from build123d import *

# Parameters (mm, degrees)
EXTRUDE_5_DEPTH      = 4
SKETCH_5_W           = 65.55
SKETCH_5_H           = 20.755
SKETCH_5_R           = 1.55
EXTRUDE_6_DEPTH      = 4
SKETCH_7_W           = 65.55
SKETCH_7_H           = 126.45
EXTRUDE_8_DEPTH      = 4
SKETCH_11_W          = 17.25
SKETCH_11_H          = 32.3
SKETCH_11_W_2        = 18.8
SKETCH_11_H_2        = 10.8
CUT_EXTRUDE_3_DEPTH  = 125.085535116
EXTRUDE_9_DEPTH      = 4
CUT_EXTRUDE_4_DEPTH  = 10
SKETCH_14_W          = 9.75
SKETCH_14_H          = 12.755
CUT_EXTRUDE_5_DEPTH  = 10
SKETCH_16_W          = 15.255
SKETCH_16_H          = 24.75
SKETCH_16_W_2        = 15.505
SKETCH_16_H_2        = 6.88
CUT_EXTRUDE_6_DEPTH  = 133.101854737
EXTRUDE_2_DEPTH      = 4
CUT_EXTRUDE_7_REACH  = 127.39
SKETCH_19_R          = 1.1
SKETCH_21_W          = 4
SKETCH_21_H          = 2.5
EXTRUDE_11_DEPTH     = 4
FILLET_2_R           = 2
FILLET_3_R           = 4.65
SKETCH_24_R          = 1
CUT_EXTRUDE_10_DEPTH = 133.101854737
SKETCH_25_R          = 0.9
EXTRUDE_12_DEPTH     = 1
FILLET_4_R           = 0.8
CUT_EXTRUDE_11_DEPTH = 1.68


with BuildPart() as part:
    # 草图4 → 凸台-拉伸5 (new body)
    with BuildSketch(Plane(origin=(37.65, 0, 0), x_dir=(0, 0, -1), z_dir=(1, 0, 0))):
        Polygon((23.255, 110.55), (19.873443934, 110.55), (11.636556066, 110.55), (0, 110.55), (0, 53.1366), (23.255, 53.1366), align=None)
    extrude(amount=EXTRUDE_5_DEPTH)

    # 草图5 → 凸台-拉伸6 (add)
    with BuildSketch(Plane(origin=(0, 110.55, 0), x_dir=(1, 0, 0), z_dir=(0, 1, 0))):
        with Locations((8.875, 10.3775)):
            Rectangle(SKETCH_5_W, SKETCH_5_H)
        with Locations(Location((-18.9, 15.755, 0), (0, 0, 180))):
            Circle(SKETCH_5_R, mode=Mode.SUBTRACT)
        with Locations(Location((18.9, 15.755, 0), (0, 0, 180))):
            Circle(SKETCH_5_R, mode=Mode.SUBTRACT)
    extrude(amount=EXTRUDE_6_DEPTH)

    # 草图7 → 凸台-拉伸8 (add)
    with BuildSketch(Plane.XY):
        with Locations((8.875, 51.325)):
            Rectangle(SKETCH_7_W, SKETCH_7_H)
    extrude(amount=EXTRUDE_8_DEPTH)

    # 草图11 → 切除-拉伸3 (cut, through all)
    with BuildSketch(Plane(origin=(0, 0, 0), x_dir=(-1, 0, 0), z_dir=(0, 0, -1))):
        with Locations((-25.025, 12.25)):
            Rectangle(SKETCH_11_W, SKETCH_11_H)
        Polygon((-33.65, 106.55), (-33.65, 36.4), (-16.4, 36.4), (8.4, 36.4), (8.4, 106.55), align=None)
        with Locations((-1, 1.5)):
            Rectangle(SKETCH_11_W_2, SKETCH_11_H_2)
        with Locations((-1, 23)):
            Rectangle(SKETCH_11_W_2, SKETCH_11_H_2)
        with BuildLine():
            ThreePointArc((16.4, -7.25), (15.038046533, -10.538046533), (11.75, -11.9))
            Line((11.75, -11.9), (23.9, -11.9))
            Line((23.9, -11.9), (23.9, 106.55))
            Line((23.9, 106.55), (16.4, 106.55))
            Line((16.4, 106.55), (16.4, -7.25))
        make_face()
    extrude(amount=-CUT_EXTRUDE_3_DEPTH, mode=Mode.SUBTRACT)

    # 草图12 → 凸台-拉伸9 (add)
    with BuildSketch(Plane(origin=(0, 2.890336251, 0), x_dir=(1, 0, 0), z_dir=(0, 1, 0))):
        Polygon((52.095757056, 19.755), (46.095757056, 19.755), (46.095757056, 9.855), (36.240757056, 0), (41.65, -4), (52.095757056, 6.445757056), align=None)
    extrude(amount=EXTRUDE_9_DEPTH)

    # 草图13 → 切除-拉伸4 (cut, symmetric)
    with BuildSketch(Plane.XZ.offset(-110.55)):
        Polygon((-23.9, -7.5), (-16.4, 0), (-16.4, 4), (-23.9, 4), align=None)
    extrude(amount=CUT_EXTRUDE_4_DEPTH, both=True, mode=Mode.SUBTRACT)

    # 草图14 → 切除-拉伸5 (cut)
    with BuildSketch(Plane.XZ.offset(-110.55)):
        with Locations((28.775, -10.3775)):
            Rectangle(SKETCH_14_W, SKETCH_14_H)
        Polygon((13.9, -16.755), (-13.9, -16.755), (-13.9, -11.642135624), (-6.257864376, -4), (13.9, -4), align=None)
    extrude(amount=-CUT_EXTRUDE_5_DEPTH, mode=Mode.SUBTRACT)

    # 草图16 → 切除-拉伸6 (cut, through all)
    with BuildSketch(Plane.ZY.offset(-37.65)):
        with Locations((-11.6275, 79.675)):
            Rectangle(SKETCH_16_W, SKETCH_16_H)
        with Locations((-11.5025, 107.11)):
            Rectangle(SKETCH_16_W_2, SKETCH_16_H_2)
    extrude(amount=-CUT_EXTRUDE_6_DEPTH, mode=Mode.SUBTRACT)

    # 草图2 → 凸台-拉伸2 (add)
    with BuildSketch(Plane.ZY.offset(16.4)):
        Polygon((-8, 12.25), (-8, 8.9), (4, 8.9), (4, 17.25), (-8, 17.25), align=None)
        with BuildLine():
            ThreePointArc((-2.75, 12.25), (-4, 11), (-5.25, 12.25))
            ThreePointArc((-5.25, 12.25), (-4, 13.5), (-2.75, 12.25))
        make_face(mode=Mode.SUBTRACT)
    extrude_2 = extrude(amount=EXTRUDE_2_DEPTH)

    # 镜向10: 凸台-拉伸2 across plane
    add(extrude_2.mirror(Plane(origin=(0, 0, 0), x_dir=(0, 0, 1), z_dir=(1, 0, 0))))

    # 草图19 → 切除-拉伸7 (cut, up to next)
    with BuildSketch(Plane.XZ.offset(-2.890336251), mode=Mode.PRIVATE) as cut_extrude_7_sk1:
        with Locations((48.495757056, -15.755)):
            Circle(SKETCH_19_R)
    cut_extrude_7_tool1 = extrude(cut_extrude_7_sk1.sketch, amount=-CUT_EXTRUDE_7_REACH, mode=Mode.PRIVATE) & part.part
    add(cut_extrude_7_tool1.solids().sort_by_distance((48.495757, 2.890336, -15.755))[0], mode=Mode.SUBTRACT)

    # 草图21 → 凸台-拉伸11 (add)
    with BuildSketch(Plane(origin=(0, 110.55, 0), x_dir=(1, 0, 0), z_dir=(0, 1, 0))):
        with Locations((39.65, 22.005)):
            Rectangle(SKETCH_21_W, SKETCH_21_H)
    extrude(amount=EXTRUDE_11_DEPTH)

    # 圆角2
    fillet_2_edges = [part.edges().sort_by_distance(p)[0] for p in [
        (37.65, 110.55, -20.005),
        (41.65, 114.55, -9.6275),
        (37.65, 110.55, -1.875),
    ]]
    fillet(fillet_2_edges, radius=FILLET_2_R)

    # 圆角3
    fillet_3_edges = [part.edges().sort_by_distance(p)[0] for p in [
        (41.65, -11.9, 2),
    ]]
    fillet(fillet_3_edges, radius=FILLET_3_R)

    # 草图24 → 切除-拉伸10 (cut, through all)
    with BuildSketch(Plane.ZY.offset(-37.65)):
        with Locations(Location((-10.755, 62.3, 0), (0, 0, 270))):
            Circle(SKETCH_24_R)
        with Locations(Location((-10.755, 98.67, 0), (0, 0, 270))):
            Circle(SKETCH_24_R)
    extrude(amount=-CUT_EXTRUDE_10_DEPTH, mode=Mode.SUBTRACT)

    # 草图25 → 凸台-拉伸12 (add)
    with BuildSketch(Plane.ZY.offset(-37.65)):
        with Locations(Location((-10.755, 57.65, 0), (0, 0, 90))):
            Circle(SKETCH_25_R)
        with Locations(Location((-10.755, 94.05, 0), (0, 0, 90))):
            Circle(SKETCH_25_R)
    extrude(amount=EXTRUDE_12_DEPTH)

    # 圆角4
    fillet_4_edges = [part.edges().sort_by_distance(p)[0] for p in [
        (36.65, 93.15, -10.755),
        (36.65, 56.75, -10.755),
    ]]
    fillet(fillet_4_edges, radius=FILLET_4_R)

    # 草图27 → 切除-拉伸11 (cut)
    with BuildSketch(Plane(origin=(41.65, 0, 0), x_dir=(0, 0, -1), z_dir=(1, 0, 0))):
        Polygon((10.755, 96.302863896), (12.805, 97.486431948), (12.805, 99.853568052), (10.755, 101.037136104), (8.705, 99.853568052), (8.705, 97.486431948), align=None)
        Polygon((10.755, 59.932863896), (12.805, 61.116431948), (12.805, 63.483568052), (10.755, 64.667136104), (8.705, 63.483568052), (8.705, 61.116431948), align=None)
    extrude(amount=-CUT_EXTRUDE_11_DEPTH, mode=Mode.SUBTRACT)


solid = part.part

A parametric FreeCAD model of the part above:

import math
import FreeCAD as App
import Part
import Sketcher

V = App.Vector
Q = App.Units.Quantity


def edges_at(feature, points):
    """Names of the edges that pass closest to the given points."""
    edges = feature.Shape.Edges
    near = lambda p: min(range(len(edges)), key=lambda i: edges[i].distToShape(Part.Vertex(*p))[0])
    return sorted({f"Edge{near(p) + 1}" for p in points})


def add_polygon(sketch, points):
    """Adds a closed chain of lines whose ends are joined by coincident constraints."""
    first, n = sketch.GeometryCount, len(points)
    for a, b in zip(points, points[1:] + points[:1]):
        sketch.addGeometry(Part.LineSegment(App.Vector(*a, 0), App.Vector(*b, 0)), False)
    for i in range(n):
        sketch.addConstraint(Sketcher.Constraint("Coincident", first + i, 2, first + (i + 1) % n, 1))

doc = App.newDocument("Part")
body = doc.addObject("PartDesign::Body", "Body")

# Sketch on YZ plane
sketch1 = body.newObject("Sketcher::SketchObject", "Sketch")
sketch1.AttachmentSupport = (doc.getObject("YZ_Plane"), [""])
sketch1.MapMode = "FlatFace"
sketch1.AttachmentOffset = App.Placement(V(0, 0, 37.65), App.Rotation())
add_polygon(sketch1, [(110.55, -23.255), (110.55, 0), (53.1366, 0), (53.1366, -23.255)])  # lines 0-3
sketch1.addConstraint([
    Sketcher.Constraint("Vertical", 0),
    Sketcher.Constraint("Horizontal", 1),
    Sketcher.Constraint("Vertical", 2),
    Sketcher.Constraint("Horizontal", 3),
    Sketcher.Constraint("PointOnObject", 0, 2, -1),
    Sketcher.Constraint("DistanceY", 0, 1, 0, 2, Q("23.255 mm")),
    Sketcher.Constraint("DistanceX", -1, 1, 0, 2, Q("110.55 mm")),
    Sketcher.Constraint("DistanceX", 1, 2, 1, 1, Q("57.4134 mm")),
])
pad1 = body.newObject("PartDesign::Pad", "Pad")
pad1.Profile = sketch1
pad1.Length = 4

# Sketch on XZ plane
sketch2 = body.newObject("Sketcher::SketchObject", "Sketch001")
sketch2.AttachmentSupport = (doc.getObject("XZ_Plane"), [""])
sketch2.MapMode = "FlatFace"
sketch2.AttachmentOffset = App.Placement(V(0, 0, -110.55), App.Rotation())
add_polygon(sketch2, [(-23.9, -20.755), (-23.9, 0), (41.65, 0), (41.65, -20.755)])  # lines 0-3
sketch2.addGeometry(Part.Circle(V(-18.9, -15.755, 0), V(0, 0, 1), 1.55), False)  # 4
sketch2.addGeometry(Part.Circle(V(18.9, -15.755, 0), V(0, 0, 1), 1.55), False)  # 5
sketch2.addConstraint([
    Sketcher.Constraint("Vertical", 0),
    Sketcher.Constraint("Horizontal", 1),
    Sketcher.Constraint("Vertical", 2),
    Sketcher.Constraint("Horizontal", 3),
    Sketcher.Constraint("Equal", 4, 5),
    Sketcher.Constraint("Symmetric", 4, 3, 5, 3, -2),
    Sketcher.Constraint("PointOnObject", 0, 2, -1),
    Sketcher.Constraint("Diameter", 4, Q("3.1 mm")),
    Sketcher.Constraint("DistanceX", 0, 2, 4, 3, Q("5 mm")),
    Sketcher.Constraint("DistanceY", 2, 2, 5, 3, Q("5 mm")),
    Sketcher.Constraint("DistanceX", 1, 1, 1, 2, Q("65.55 mm")),
    Sketcher.Constraint("DistanceX", 4, 3, -1, 1, Q("18.9 mm")),
    Sketcher.Constraint("DistanceY", 0, 1, 0, 2, Q("20.755 mm")),
])
pad2 = body.newObject("PartDesign::Pad", "Pad001")
pad2.Profile = sketch2
pad2.Length = 4
pad2.Reversed = True

# Sketch on XY plane
sketch3 = body.newObject("Sketcher::SketchObject", "Sketch002")
sketch3.AttachmentSupport = (doc.getObject("XY_Plane"), [""])
sketch3.MapMode = "FlatFace"
add_polygon(sketch3, [(-23.9, 114.55), (-23.9, -11.9), (41.65, -11.9), (41.65, 114.55)])  # lines 0-3
sketch3.addConstraint([
    Sketcher.Constraint("Vertical", 0),
    Sketcher.Constraint("Horizontal", 1),
    Sketcher.Constraint("Vertical", 2),
    Sketcher.Constraint("Horizontal", 3),
    Sketcher.Constraint("DistanceX", 1, 1, 1, 2, Q("65.55 mm")),
    Sketcher.Constraint("DistanceY", 0, 2, 0, 1, Q("126.45 mm")),
    Sketcher.Constraint("DistanceX", 0, 2, -1, 1, Q("23.9 mm")),
    Sketcher.Constraint("DistanceY", 0, 2, -1, 1, Q("11.9 mm")),
])
pad3 = body.newObject("PartDesign::Pad", "Pad002")
pad3.Profile = sketch3
pad3.Length = 4

# Sketch on XY plane
sketch4 = body.newObject("Sketcher::SketchObject", "Sketch003")
sketch4.AttachmentSupport = (doc.getObject("XY_Plane"), [""])
sketch4.MapMode = "FlatFace"
add_polygon(sketch4, [(33.65, 28.4), (33.65, -3.9), (16.4, -3.9), (16.4, 28.4)])  # lines 0-3
add_polygon(sketch4, [(33.65, 106.55), (33.65, 36.4), (-8.4, 36.4), (-8.4, 106.55)])  # lines 4-7
add_polygon(sketch4, [(10.4, 6.9), (10.4, -3.9), (-8.4, -3.9), (-8.4, 6.9)])  # lines 8-11
add_polygon(sketch4, [(10.4, 28.4), (10.4, 17.6), (-8.4, 17.6), (-8.4, 28.4)])  # lines 12-15
sketch4.addGeometry(Part.ArcOfCircle(Part.Circle(V(-11.75, -7.25, 0), V(0, 0, 1), 4.65), math.radians(180), math.radians(270)), False)  # 16
sketch4.addGeometry(Part.LineSegment(V(-11.75, -11.9, 0), V(-23.9, -11.9, 0)), False)  # 17
sketch4.addGeometry(Part.LineSegment(V(-23.9, -11.9, 0), V(-23.9, 106.55, 0)), False)  # 18
sketch4.addGeometry(Part.LineSegment(V(-23.9, 106.55, 0), V(-16.4, 106.55, 0)), False)  # 19
sketch4.addGeometry(Part.LineSegment(V(-16.4, 106.55, 0), V(-16.4, -7.25, 0)), False)  # 20
sketch4.addConstraint([
    Sketcher.Constraint("Tangent", 16, 2, 17, 1),
    Sketcher.Constraint("Coincident", 17, 2, 18, 1),
    Sketcher.Constraint("Coincident", 18, 2, 19, 1),
    Sketcher.Constraint("Coincident", 19, 2, 20, 1),
    Sketcher.Constraint("Tangent", 20, 2, 16, 1),
    Sketcher.Constraint("Vertical", 0),
    Sketcher.Constraint("Horizontal", 1),
    Sketcher.Constraint("Vertical", 2),
    Sketcher.Constraint("Horizontal", 3),
    Sketcher.Constraint("Vertical", 4),
    Sketcher.Constraint("Horizontal", 5),
    Sketcher.Constraint("Vertical", 6),
    Sketcher.Constraint("Horizontal", 7),
    Sketcher.Constraint("Vertical", 8),
    Sketcher.Constraint("Horizontal", 9),
    Sketcher.Constraint("Vertical", 10),
    Sketcher.Constraint("Horizontal", 11),
    Sketcher.Constraint("Vertical", 12),
    Sketcher.Constraint("Horizontal", 13),
    Sketcher.Constraint("Vertical", 14),
    Sketcher.Constraint("Horizontal", 15),
    Sketcher.Constraint("Horizontal", 17),
    Sketcher.Constraint("Vertical", 18),
    Sketcher.Constraint("Horizontal", 19),
    Sketcher.Constraint("Vertical", 20),
    Sketcher.Constraint("Horizontal", 1, 2, 8, 2),
    Sketcher.Constraint("Horizontal", 3, 2, 14, 2),
    Sketcher.Constraint("Horizontal", 7, 2, 18, 2),
    Sketcher.Constraint("Vertical", 3, 2, 4, 2),
    Sketcher.Constraint("Vertical", 6, 2, 9, 2),
    Sketcher.Constraint("Vertical", 11, 2, 12, 2),
    Sketcher.Constraint("Vertical", 10, 2, 13, 2),
    Sketcher.Constraint("Equal", 10, 12),
    Sketcher.Constraint("Radius", 16, Q("4.65 mm")),
    Sketcher.Constraint("DistanceX", 9, 2, 9, 1, Q("18.8 mm")),
    Sketcher.Constraint("DistanceX", 19, 1, 19, 2, Q("7.5 mm")),
    Sketcher.Constraint("DistanceY", 0, 2, 0, 1, Q("32.3 mm")),
    Sketcher.Constraint("DistanceY", 8, 2, 8, 1, Q("10.8 mm")),
    Sketcher.Constraint("DistanceY", 20, 2, 20, 1, Q("113.8 mm")),
    Sketcher.Constraint("DistanceY", 3, 2, 4, 2, Q("8 mm")),
    Sketcher.Constraint("DistanceX", 8, 2, 1, 2, Q("6 mm")),
    Sketcher.Constraint("DistanceY", 16, 2, 9, 2, Q("8 mm")),
    Sketcher.Constraint("DistanceX", 19, 2, 6, 2, Q("8 mm")),
    Sketcher.Constraint("DistanceX", 1, 2, 1, 1, Q("17.25 mm")),
    Sketcher.Constraint("DistanceY", 0, 2, -1, 1, Q("3.9 mm")),
    Sketcher.Constraint("DistanceX", -1, 1, 1, 2, Q("16.4 mm")),
])
pocket1 = body.newObject("PartDesign::Pocket", "Pocket")
pocket1.Profile = sketch4
pocket1.Type = "ThroughAll"
pocket1.Reversed = True

# Sketch on XZ plane
sketch5 = body.newObject("Sketcher::SketchObject", "Sketch004")
sketch5.AttachmentSupport = (doc.getObject("XZ_Plane"), [""])
sketch5.MapMode = "FlatFace"
sketch5.AttachmentOffset = App.Placement(V(0, 0, -2.890336), App.Rotation())
add_polygon(sketch5, [(52.095757, -19.755), (46.095757, -19.755), (46.095757, -9.855), (36.240757, 0), (41.65, 4), (52.095757, -6.445757)])  # lines 0-5
sketch5.addConstraint([
    Sketcher.Constraint("Horizontal", 0),
    Sketcher.Constraint("Vertical", 1),
    Sketcher.Constraint("Vertical", 5),
    Sketcher.Constraint("PointOnObject", 2, 2, -1),
    Sketcher.Constraint("Parallel", 2, 4),
    Sketcher.Constraint("DistanceX", 0, 2, 0, 1, Q("6 mm")),
    Sketcher.Constraint("Angle", 2, Q("135 deg")),
    Sketcher.Constraint("DistanceY", 1, 1, 1, 2, Q("9.9 mm")),
    Sketcher.Constraint("DistanceY", -1, 1, 3, 2, Q("4 mm")),
    Sketcher.Constraint("DistanceX", -1, 1, 3, 2, Q("41.65 mm")),
    Sketcher.Constraint("DistanceY", 0, 2, -1, 1, Q("19.755 mm")),
    Sketcher.Constraint("Distance", 3, Q("6.727549 mm")),
])
pad4 = body.newObject("PartDesign::Pad", "Pad003")
pad4.Profile = sketch5
pad4.Length = 4
pad4.Reversed = True

# Sketch on XZ plane
sketch6 = body.newObject("Sketcher::SketchObject", "Sketch005")
sketch6.AttachmentSupport = (doc.getObject("XZ_Plane"), [""])
sketch6.MapMode = "FlatFace"
sketch6.AttachmentOffset = App.Placement(V(0, 0, -110.55), App.Rotation())
add_polygon(sketch6, [(-23.9, -7.5), (-16.4, 0), (-16.4, 4), (-23.9, 4)])  # lines 0-3
sketch6.addConstraint([
    Sketcher.Constraint("Vertical", 1),
    Sketcher.Constraint("Horizontal", 2),
    Sketcher.Constraint("Vertical", 3),
    Sketcher.Constraint("PointOnObject", 0, 2, -1),
    Sketcher.Constraint("DistanceY", 1, 1, 1, 2, Q("4 mm")),
    Sketcher.Constraint("Angle", 0, Q("45 deg")),
    Sketcher.Constraint("DistanceX", 2, 2, 2, 1, Q("7.5 mm")),
    Sketcher.Constraint("DistanceX", 0, 2, -1, 1, Q("16.4 mm")),
])
pocket2 = body.newObject("PartDesign::Pocket", "Pocket001")
pocket2.Profile = sketch6
pocket2.Length = 20
pocket2.Midplane = True

# Sketch on XZ plane
sketch7 = body.newObject("Sketcher::SketchObject", "Sketch006")
sketch7.AttachmentSupport = (doc.getObject("XZ_Plane"), [""])
sketch7.MapMode = "FlatFace"
sketch7.AttachmentOffset = App.Placement(V(0, 0, -110.55), App.Rotation())
add_polygon(sketch7, [(23.9, -4), (23.9, -16.755), (33.65, -16.755), (33.65, -4)])  # lines 0-3
add_polygon(sketch7, [(-13.9, -16.755), (13.9, -16.755), (13.9, -4), (-6.257864, -4), (-13.9, -11.642136)])  # lines 4-8
sketch7.addConstraint([
    Sketcher.Constraint("Vertical", 0),
    Sketcher.Constraint("Horizontal", 1),
    Sketcher.Constraint("Vertical", 2),
    Sketcher.Constraint("Horizontal", 3),
    Sketcher.Constraint("Horizontal", 4),
    Sketcher.Constraint("Vertical", 5),
    Sketcher.Constraint("Horizontal", 6),
    Sketcher.Constraint("Vertical", 8),
    Sketcher.Constraint("Horizontal", 1, 2, 4, 2),
    Sketcher.Constraint("Horizontal", 3, 2, 5, 2),
    Sketcher.Constraint("Angle", 7, Q("-135 deg")),
    Sketcher.Constraint("DistanceX", 4, 1, 4, 2, Q("27.8 mm")),
    Sketcher.Constraint("DistanceY", 2, 2, -1, 1, Q("4 mm")),
    Sketcher.Constraint("DistanceX", 4, 2, 0, 2, Q("10 mm")),
    Sketcher.Constraint("DistanceX", 1, 1, 1, 2, Q("9.75 mm")),
    Sketcher.Constraint("DistanceX", -1, 1, 0, 2, Q("23.9 mm")),
    Sketcher.Constraint("DistanceY", 0, 2, 0, 1, Q("12.755 mm")),
    Sketcher.Constraint("Distance", 7, Q("10.807612 mm")),
])
pocket3 = body.newObject("PartDesign::Pocket", "Pocket002")
pocket3.Profile = sketch7
pocket3.Length = 10

# Sketch on YZ plane
sketch8 = body.newObject("Sketcher::SketchObject", "Sketch007")
sketch8.AttachmentSupport = (doc.getObject("YZ_Plane"), [""])
sketch8.MapMode = "FlatFace"
sketch8.AttachmentOffset = App.Placement(V(0, 0, 37.65), App.Rotation())
add_polygon(sketch8, [(92.05, -19.255), (67.3, -19.255), (67.3, -4), (92.05, -4)])  # lines 0-3
add_polygon(sketch8, [(110.55, -19.255), (103.67, -19.255), (103.67, -3.75), (110.55, -3.75)])  # lines 4-7
sketch8.addConstraint([
    Sketcher.Constraint("Horizontal", 0),
    Sketcher.Constraint("Vertical", 1),
    Sketcher.Constraint("Horizontal", 2),
    Sketcher.Constraint("Vertical", 3),
    Sketcher.Constraint("Horizontal", 4),
    Sketcher.Constraint("Vertical", 5),
    Sketcher.Constraint("Horizontal", 6),
    Sketcher.Constraint("Vertical", 7),
    Sketcher.Constraint("Horizontal", 3, 2, 4, 2),
    Sketcher.Constraint("DistanceY", 1, 2, -1, 1, Q("4 mm")),
    Sketcher.Constraint("DistanceX", 0, 2, 0, 1, Q("24.75 mm")),
    Sketcher.Constraint("DistanceX", 4, 2, 4, 1, Q("6.88 mm")),
    Sketcher.Constraint("DistanceX", -1, 1, 0, 2, Q("67.3 mm")),
    Sketcher.Constraint("DistanceX", 2, 2, 6, 2, Q("18.5 mm")),
    Sketcher.Constraint("DistanceY", 1, 1, 1, 2, Q("15.255 mm")),
    Sketcher.Constraint("DistanceY", 5, 1, 5, 2, Q("15.505 mm")),
])
pocket4 = body.newObject("PartDesign::Pocket", "Pocket003")
pocket4.Profile = sketch8
pocket4.Type = "ThroughAll"
pocket4.Reversed = True

# Sketch on YZ plane
sketch9 = body.newObject("Sketcher::SketchObject", "Sketch008")
sketch9.AttachmentSupport = (doc.getObject("YZ_Plane"), [""])
sketch9.MapMode = "FlatFace"
sketch9.AttachmentOffset = App.Placement(V(0, 0, -16.4), App.Rotation())
add_polygon(sketch9, [(8.9, -8), (8.9, 4), (17.25, 4), (17.25, -8)])  # lines 0-3
sketch9.addGeometry(Part.Circle(V(12.25, -4, 0), V(0, 0, 1), 1.25), False)  # 4
sketch9.addConstraint([
    Sketcher.Constraint("Vertical", 0),
    Sketcher.Constraint("Horizontal", 1),
    Sketcher.Constraint("Vertical", 2),
    Sketcher.Constraint("Horizontal", 3),
    Sketcher.Constraint("Diameter", 4, Q("2.5 mm")),
    Sketcher.Constraint("DistanceY", 0, 1, 0, 2, Q("12 mm")),
    Sketcher.Constraint("DistanceY", 4, 3, -1, 1, Q("4 mm")),
    Sketcher.Constraint("DistanceY", -1, 1, 0, 2, Q("4 mm")),
    Sketcher.Constraint("DistanceX", 4, 3, 1, 2, Q("5 mm")),
    Sketcher.Constraint("DistanceX", 1, 1, 1, 2, Q("8.35 mm")),
    Sketcher.Constraint("DistanceX", -1, 1, 0, 2, Q("8.9 mm")),
])
pad5 = body.newObject("PartDesign::Pad", "Pad004")
pad5.Profile = sketch9
pad5.Length = 4
pad5.Reversed = True
doc.recompute()

mirrored = body.newObject("PartDesign::Mirrored", "Mirrored")
mirrored.Originals = [pad5]
mirrored.MirrorPlane = (doc.getObject("YZ_Plane"), [""])
body.Tip = mirrored

# Sketch on XZ plane
sketch10 = body.newObject("Sketcher::SketchObject", "Sketch009")
sketch10.AttachmentSupport = (doc.getObject("XZ_Plane"), [""])
sketch10.MapMode = "FlatFace"
sketch10.AttachmentOffset = App.Placement(V(0, 0, -2.890336), App.Rotation())
sketch10.addGeometry(Part.Circle(V(48.495757, -15.755, 0), V(0, 0, 1), 1.1), False)
sketch10.addConstraint([
    Sketcher.Constraint("Diameter", 0, Q("2.2 mm")),
    Sketcher.Constraint("DistanceY", 0, 3, -1, 1, Q("15.755 mm")),
    Sketcher.Constraint("DistanceX", -1, 1, 0, 3, Q("48.495757 mm")),
])
pocket5 = body.newObject("PartDesign::Pocket", "Pocket004")
pocket5.Profile = sketch10
pocket5.Type = "UpToFirst"

# Sketch on XZ plane
sketch11 = body.newObject("Sketcher::SketchObject", "Sketch010")
sketch11.AttachmentSupport = (doc.getObject("XZ_Plane"), [""])
sketch11.MapMode = "FlatFace"
sketch11.AttachmentOffset = App.Placement(V(0, 0, -110.55), App.Rotation())
add_polygon(sketch11, [(37.65, -23.255), (37.65, -20.755), (41.65, -20.755), (41.65, -23.255)])  # lines 0-3
sketch11.addConstraint([
    Sketcher.Constraint("Vertical", 0),
    Sketcher.Constraint("Horizontal", 1),
    Sketcher.Constraint("Vertical", 2),
    Sketcher.Constraint("Horizontal", 3),
    Sketcher.Constraint("DistanceX", 1, 1, 1, 2, Q("4 mm")),
    Sketcher.Constraint("DistanceY", 0, 1, 0, 2, Q("2.5 mm")),
    Sketcher.Constraint("DistanceX", -1, 1, 0, 2, Q("37.65 mm")),
    Sketcher.Constraint("DistanceY", 0, 2, -1, 1, Q("20.755 mm")),
])
pad6 = body.newObject("PartDesign::Pad", "Pad005")
pad6.Profile = sketch11
pad6.Length = 4
pad6.Reversed = True
doc.recompute()

fillet = body.newObject("PartDesign::Fillet", "Fillet")
fillet.Base = (pad6, edges_at(pad6, [(37.65, 110.55, -20.005), (41.65, 114.55, -9.627), (37.65, 110.55, -1.875)]))
fillet.Radius = 2
doc.recompute()

fillet2 = body.newObject("PartDesign::Fillet", "Fillet001")
fillet2.Base = (fillet, edges_at(fillet, [(41.65, -11.9, 2)]))
fillet2.Radius = 4.65

# Sketch on YZ plane
sketch12 = body.newObject("Sketcher::SketchObject", "Sketch011")
sketch12.AttachmentSupport = (doc.getObject("YZ_Plane"), [""])
sketch12.MapMode = "FlatFace"
sketch12.AttachmentOffset = App.Placement(V(0, 0, 37.65), App.Rotation())
sketch12.addGeometry([
    Part.Circle(V(62.3, -10.755, 0), V(0, 0, 1), 1),
    Part.Circle(V(98.67, -10.755, 0), V(0, 0, 1), 1),
], False)
sketch12.addConstraint([
    Sketcher.Constraint("Equal", 0, 1),
    Sketcher.Constraint("Horizontal", 0, 3, 1, 3),
    Sketcher.Constraint("Diameter", 0, Q("2 mm")),
    Sketcher.Constraint("DistanceX", -1, 1, 0, 3, Q("62.3 mm")),
    Sketcher.Constraint("DistanceX", -1, 1, 1, 3, Q("98.67 mm")),
    Sketcher.Constraint("DistanceY", 0, 3, -1, 1, Q("10.755 mm")),
])
pocket6 = body.newObject("PartDesign::Pocket", "Pocket005")
pocket6.Profile = sketch12
pocket6.Type = "ThroughAll"
pocket6.Reversed = True

# Sketch on YZ plane
sketch13 = body.newObject("Sketcher::SketchObject", "Sketch012")
sketch13.AttachmentSupport = (doc.getObject("YZ_Plane"), [""])
sketch13.MapMode = "FlatFace"
sketch13.AttachmentOffset = App.Placement(V(0, 0, 37.65), App.Rotation())
sketch13.addGeometry([
    Part.Circle(V(57.65, -10.755, 0), V(0, 0, 1), 0.9),
    Part.Circle(V(94.05, -10.755, 0), V(0, 0, 1), 0.9),
], False)
sketch13.addConstraint([
    Sketcher.Constraint("Equal", 0, 1),
    Sketcher.Constraint("Horizontal", 0, 3, 1, 3),
    Sketcher.Constraint("Diameter", 0, Q("1.8 mm")),
    Sketcher.Constraint("DistanceX", 0, 3, 1, 3, Q("36.4 mm")),
    Sketcher.Constraint("DistanceX", -1, 1, 0, 3, Q("57.65 mm")),
    Sketcher.Constraint("DistanceY", 0, 3, -1, 1, Q("10.755 mm")),
])
pad7 = body.newObject("PartDesign::Pad", "Pad006")
pad7.Profile = sketch13
pad7.Length = 1
pad7.Reversed = True
doc.recompute()

fillet3 = body.newObject("PartDesign::Fillet", "Fillet002")
fillet3.Base = (pad7, edges_at(pad7, [(36.65, 93.15, -10.755), (36.65, 56.75, -10.755)]))
fillet3.Radius = 0.8

# Sketch on YZ plane
sketch14 = body.newObject("Sketcher::SketchObject", "Sketch013")
sketch14.AttachmentSupport = (doc.getObject("YZ_Plane"), [""])
sketch14.MapMode = "FlatFace"
sketch14.AttachmentOffset = App.Placement(V(0, 0, 41.65), App.Rotation())
add_polygon(sketch14, [(96.302864, -10.755), (97.486432, -12.805), (99.853568, -12.805), (101.037136, -10.755), (99.853568, -8.705), (97.486432, -8.705)])  # lines 0-5
add_polygon(sketch14, [(59.932864, -10.755), (61.116432, -12.805), (63.483568, -12.805), (64.667136, -10.755), (63.483568, -8.705), (61.116432, -8.705)])  # lines 6-11
sketch14.addConstraint([
    Sketcher.Constraint("Horizontal", 1),
    Sketcher.Constraint("Horizontal", 4),
    Sketcher.Constraint("Horizontal", 7),
    Sketcher.Constraint("Horizontal", 10),
    Sketcher.Constraint("Parallel", 0, 3),
    Sketcher.Constraint("Parallel", 2, 5),
    Sketcher.Constraint("Parallel", 3, 6),
    Sketcher.Constraint("Parallel", 5, 8),
    Sketcher.Constraint("Parallel", 6, 9),
    Sketcher.Constraint("Parallel", 8, 11),
    Sketcher.Constraint("Horizontal", 2, 2, 5, 2),
    Sketcher.Constraint("Horizontal", 1, 2, 6, 2),
    Sketcher.Constraint("Horizontal", 5, 2, 8, 2),
    Sketcher.Constraint("Horizontal", 4, 2, 9, 2),
    Sketcher.Constraint("Horizontal", 8, 2, 11, 2),
    Sketcher.Constraint("Vertical", 1, 2, 3, 2),
    Sketcher.Constraint("Vertical", 0, 2, 4, 2),
    Sketcher.Constraint("Equal", 4, 7),
    Sketcher.Constraint("Angle", 0, Q("-60 deg")),
    Sketcher.Constraint("DistanceY", 1, 2, 3, 2, Q("4.1 mm")),
    Sketcher.Constraint("DistanceX", 6, 2, 0, 2, Q("36.37 mm")),
    Sketcher.Constraint("DistanceY", 0, 2, -1, 1, Q("12.805 mm")),
    Sketcher.Constraint("DistanceX", 1, 1, 1, 2, Q("2.367136 mm")),
    Sketcher.Constraint("DistanceX", -1, 1, 0, 2, Q("97.486432 mm")),
])
pocket7 = body.newObject("PartDesign::Pocket", "Pocket006")
pocket7.Profile = sketch14
pocket7.Length = 1.68

doc.recompute()
